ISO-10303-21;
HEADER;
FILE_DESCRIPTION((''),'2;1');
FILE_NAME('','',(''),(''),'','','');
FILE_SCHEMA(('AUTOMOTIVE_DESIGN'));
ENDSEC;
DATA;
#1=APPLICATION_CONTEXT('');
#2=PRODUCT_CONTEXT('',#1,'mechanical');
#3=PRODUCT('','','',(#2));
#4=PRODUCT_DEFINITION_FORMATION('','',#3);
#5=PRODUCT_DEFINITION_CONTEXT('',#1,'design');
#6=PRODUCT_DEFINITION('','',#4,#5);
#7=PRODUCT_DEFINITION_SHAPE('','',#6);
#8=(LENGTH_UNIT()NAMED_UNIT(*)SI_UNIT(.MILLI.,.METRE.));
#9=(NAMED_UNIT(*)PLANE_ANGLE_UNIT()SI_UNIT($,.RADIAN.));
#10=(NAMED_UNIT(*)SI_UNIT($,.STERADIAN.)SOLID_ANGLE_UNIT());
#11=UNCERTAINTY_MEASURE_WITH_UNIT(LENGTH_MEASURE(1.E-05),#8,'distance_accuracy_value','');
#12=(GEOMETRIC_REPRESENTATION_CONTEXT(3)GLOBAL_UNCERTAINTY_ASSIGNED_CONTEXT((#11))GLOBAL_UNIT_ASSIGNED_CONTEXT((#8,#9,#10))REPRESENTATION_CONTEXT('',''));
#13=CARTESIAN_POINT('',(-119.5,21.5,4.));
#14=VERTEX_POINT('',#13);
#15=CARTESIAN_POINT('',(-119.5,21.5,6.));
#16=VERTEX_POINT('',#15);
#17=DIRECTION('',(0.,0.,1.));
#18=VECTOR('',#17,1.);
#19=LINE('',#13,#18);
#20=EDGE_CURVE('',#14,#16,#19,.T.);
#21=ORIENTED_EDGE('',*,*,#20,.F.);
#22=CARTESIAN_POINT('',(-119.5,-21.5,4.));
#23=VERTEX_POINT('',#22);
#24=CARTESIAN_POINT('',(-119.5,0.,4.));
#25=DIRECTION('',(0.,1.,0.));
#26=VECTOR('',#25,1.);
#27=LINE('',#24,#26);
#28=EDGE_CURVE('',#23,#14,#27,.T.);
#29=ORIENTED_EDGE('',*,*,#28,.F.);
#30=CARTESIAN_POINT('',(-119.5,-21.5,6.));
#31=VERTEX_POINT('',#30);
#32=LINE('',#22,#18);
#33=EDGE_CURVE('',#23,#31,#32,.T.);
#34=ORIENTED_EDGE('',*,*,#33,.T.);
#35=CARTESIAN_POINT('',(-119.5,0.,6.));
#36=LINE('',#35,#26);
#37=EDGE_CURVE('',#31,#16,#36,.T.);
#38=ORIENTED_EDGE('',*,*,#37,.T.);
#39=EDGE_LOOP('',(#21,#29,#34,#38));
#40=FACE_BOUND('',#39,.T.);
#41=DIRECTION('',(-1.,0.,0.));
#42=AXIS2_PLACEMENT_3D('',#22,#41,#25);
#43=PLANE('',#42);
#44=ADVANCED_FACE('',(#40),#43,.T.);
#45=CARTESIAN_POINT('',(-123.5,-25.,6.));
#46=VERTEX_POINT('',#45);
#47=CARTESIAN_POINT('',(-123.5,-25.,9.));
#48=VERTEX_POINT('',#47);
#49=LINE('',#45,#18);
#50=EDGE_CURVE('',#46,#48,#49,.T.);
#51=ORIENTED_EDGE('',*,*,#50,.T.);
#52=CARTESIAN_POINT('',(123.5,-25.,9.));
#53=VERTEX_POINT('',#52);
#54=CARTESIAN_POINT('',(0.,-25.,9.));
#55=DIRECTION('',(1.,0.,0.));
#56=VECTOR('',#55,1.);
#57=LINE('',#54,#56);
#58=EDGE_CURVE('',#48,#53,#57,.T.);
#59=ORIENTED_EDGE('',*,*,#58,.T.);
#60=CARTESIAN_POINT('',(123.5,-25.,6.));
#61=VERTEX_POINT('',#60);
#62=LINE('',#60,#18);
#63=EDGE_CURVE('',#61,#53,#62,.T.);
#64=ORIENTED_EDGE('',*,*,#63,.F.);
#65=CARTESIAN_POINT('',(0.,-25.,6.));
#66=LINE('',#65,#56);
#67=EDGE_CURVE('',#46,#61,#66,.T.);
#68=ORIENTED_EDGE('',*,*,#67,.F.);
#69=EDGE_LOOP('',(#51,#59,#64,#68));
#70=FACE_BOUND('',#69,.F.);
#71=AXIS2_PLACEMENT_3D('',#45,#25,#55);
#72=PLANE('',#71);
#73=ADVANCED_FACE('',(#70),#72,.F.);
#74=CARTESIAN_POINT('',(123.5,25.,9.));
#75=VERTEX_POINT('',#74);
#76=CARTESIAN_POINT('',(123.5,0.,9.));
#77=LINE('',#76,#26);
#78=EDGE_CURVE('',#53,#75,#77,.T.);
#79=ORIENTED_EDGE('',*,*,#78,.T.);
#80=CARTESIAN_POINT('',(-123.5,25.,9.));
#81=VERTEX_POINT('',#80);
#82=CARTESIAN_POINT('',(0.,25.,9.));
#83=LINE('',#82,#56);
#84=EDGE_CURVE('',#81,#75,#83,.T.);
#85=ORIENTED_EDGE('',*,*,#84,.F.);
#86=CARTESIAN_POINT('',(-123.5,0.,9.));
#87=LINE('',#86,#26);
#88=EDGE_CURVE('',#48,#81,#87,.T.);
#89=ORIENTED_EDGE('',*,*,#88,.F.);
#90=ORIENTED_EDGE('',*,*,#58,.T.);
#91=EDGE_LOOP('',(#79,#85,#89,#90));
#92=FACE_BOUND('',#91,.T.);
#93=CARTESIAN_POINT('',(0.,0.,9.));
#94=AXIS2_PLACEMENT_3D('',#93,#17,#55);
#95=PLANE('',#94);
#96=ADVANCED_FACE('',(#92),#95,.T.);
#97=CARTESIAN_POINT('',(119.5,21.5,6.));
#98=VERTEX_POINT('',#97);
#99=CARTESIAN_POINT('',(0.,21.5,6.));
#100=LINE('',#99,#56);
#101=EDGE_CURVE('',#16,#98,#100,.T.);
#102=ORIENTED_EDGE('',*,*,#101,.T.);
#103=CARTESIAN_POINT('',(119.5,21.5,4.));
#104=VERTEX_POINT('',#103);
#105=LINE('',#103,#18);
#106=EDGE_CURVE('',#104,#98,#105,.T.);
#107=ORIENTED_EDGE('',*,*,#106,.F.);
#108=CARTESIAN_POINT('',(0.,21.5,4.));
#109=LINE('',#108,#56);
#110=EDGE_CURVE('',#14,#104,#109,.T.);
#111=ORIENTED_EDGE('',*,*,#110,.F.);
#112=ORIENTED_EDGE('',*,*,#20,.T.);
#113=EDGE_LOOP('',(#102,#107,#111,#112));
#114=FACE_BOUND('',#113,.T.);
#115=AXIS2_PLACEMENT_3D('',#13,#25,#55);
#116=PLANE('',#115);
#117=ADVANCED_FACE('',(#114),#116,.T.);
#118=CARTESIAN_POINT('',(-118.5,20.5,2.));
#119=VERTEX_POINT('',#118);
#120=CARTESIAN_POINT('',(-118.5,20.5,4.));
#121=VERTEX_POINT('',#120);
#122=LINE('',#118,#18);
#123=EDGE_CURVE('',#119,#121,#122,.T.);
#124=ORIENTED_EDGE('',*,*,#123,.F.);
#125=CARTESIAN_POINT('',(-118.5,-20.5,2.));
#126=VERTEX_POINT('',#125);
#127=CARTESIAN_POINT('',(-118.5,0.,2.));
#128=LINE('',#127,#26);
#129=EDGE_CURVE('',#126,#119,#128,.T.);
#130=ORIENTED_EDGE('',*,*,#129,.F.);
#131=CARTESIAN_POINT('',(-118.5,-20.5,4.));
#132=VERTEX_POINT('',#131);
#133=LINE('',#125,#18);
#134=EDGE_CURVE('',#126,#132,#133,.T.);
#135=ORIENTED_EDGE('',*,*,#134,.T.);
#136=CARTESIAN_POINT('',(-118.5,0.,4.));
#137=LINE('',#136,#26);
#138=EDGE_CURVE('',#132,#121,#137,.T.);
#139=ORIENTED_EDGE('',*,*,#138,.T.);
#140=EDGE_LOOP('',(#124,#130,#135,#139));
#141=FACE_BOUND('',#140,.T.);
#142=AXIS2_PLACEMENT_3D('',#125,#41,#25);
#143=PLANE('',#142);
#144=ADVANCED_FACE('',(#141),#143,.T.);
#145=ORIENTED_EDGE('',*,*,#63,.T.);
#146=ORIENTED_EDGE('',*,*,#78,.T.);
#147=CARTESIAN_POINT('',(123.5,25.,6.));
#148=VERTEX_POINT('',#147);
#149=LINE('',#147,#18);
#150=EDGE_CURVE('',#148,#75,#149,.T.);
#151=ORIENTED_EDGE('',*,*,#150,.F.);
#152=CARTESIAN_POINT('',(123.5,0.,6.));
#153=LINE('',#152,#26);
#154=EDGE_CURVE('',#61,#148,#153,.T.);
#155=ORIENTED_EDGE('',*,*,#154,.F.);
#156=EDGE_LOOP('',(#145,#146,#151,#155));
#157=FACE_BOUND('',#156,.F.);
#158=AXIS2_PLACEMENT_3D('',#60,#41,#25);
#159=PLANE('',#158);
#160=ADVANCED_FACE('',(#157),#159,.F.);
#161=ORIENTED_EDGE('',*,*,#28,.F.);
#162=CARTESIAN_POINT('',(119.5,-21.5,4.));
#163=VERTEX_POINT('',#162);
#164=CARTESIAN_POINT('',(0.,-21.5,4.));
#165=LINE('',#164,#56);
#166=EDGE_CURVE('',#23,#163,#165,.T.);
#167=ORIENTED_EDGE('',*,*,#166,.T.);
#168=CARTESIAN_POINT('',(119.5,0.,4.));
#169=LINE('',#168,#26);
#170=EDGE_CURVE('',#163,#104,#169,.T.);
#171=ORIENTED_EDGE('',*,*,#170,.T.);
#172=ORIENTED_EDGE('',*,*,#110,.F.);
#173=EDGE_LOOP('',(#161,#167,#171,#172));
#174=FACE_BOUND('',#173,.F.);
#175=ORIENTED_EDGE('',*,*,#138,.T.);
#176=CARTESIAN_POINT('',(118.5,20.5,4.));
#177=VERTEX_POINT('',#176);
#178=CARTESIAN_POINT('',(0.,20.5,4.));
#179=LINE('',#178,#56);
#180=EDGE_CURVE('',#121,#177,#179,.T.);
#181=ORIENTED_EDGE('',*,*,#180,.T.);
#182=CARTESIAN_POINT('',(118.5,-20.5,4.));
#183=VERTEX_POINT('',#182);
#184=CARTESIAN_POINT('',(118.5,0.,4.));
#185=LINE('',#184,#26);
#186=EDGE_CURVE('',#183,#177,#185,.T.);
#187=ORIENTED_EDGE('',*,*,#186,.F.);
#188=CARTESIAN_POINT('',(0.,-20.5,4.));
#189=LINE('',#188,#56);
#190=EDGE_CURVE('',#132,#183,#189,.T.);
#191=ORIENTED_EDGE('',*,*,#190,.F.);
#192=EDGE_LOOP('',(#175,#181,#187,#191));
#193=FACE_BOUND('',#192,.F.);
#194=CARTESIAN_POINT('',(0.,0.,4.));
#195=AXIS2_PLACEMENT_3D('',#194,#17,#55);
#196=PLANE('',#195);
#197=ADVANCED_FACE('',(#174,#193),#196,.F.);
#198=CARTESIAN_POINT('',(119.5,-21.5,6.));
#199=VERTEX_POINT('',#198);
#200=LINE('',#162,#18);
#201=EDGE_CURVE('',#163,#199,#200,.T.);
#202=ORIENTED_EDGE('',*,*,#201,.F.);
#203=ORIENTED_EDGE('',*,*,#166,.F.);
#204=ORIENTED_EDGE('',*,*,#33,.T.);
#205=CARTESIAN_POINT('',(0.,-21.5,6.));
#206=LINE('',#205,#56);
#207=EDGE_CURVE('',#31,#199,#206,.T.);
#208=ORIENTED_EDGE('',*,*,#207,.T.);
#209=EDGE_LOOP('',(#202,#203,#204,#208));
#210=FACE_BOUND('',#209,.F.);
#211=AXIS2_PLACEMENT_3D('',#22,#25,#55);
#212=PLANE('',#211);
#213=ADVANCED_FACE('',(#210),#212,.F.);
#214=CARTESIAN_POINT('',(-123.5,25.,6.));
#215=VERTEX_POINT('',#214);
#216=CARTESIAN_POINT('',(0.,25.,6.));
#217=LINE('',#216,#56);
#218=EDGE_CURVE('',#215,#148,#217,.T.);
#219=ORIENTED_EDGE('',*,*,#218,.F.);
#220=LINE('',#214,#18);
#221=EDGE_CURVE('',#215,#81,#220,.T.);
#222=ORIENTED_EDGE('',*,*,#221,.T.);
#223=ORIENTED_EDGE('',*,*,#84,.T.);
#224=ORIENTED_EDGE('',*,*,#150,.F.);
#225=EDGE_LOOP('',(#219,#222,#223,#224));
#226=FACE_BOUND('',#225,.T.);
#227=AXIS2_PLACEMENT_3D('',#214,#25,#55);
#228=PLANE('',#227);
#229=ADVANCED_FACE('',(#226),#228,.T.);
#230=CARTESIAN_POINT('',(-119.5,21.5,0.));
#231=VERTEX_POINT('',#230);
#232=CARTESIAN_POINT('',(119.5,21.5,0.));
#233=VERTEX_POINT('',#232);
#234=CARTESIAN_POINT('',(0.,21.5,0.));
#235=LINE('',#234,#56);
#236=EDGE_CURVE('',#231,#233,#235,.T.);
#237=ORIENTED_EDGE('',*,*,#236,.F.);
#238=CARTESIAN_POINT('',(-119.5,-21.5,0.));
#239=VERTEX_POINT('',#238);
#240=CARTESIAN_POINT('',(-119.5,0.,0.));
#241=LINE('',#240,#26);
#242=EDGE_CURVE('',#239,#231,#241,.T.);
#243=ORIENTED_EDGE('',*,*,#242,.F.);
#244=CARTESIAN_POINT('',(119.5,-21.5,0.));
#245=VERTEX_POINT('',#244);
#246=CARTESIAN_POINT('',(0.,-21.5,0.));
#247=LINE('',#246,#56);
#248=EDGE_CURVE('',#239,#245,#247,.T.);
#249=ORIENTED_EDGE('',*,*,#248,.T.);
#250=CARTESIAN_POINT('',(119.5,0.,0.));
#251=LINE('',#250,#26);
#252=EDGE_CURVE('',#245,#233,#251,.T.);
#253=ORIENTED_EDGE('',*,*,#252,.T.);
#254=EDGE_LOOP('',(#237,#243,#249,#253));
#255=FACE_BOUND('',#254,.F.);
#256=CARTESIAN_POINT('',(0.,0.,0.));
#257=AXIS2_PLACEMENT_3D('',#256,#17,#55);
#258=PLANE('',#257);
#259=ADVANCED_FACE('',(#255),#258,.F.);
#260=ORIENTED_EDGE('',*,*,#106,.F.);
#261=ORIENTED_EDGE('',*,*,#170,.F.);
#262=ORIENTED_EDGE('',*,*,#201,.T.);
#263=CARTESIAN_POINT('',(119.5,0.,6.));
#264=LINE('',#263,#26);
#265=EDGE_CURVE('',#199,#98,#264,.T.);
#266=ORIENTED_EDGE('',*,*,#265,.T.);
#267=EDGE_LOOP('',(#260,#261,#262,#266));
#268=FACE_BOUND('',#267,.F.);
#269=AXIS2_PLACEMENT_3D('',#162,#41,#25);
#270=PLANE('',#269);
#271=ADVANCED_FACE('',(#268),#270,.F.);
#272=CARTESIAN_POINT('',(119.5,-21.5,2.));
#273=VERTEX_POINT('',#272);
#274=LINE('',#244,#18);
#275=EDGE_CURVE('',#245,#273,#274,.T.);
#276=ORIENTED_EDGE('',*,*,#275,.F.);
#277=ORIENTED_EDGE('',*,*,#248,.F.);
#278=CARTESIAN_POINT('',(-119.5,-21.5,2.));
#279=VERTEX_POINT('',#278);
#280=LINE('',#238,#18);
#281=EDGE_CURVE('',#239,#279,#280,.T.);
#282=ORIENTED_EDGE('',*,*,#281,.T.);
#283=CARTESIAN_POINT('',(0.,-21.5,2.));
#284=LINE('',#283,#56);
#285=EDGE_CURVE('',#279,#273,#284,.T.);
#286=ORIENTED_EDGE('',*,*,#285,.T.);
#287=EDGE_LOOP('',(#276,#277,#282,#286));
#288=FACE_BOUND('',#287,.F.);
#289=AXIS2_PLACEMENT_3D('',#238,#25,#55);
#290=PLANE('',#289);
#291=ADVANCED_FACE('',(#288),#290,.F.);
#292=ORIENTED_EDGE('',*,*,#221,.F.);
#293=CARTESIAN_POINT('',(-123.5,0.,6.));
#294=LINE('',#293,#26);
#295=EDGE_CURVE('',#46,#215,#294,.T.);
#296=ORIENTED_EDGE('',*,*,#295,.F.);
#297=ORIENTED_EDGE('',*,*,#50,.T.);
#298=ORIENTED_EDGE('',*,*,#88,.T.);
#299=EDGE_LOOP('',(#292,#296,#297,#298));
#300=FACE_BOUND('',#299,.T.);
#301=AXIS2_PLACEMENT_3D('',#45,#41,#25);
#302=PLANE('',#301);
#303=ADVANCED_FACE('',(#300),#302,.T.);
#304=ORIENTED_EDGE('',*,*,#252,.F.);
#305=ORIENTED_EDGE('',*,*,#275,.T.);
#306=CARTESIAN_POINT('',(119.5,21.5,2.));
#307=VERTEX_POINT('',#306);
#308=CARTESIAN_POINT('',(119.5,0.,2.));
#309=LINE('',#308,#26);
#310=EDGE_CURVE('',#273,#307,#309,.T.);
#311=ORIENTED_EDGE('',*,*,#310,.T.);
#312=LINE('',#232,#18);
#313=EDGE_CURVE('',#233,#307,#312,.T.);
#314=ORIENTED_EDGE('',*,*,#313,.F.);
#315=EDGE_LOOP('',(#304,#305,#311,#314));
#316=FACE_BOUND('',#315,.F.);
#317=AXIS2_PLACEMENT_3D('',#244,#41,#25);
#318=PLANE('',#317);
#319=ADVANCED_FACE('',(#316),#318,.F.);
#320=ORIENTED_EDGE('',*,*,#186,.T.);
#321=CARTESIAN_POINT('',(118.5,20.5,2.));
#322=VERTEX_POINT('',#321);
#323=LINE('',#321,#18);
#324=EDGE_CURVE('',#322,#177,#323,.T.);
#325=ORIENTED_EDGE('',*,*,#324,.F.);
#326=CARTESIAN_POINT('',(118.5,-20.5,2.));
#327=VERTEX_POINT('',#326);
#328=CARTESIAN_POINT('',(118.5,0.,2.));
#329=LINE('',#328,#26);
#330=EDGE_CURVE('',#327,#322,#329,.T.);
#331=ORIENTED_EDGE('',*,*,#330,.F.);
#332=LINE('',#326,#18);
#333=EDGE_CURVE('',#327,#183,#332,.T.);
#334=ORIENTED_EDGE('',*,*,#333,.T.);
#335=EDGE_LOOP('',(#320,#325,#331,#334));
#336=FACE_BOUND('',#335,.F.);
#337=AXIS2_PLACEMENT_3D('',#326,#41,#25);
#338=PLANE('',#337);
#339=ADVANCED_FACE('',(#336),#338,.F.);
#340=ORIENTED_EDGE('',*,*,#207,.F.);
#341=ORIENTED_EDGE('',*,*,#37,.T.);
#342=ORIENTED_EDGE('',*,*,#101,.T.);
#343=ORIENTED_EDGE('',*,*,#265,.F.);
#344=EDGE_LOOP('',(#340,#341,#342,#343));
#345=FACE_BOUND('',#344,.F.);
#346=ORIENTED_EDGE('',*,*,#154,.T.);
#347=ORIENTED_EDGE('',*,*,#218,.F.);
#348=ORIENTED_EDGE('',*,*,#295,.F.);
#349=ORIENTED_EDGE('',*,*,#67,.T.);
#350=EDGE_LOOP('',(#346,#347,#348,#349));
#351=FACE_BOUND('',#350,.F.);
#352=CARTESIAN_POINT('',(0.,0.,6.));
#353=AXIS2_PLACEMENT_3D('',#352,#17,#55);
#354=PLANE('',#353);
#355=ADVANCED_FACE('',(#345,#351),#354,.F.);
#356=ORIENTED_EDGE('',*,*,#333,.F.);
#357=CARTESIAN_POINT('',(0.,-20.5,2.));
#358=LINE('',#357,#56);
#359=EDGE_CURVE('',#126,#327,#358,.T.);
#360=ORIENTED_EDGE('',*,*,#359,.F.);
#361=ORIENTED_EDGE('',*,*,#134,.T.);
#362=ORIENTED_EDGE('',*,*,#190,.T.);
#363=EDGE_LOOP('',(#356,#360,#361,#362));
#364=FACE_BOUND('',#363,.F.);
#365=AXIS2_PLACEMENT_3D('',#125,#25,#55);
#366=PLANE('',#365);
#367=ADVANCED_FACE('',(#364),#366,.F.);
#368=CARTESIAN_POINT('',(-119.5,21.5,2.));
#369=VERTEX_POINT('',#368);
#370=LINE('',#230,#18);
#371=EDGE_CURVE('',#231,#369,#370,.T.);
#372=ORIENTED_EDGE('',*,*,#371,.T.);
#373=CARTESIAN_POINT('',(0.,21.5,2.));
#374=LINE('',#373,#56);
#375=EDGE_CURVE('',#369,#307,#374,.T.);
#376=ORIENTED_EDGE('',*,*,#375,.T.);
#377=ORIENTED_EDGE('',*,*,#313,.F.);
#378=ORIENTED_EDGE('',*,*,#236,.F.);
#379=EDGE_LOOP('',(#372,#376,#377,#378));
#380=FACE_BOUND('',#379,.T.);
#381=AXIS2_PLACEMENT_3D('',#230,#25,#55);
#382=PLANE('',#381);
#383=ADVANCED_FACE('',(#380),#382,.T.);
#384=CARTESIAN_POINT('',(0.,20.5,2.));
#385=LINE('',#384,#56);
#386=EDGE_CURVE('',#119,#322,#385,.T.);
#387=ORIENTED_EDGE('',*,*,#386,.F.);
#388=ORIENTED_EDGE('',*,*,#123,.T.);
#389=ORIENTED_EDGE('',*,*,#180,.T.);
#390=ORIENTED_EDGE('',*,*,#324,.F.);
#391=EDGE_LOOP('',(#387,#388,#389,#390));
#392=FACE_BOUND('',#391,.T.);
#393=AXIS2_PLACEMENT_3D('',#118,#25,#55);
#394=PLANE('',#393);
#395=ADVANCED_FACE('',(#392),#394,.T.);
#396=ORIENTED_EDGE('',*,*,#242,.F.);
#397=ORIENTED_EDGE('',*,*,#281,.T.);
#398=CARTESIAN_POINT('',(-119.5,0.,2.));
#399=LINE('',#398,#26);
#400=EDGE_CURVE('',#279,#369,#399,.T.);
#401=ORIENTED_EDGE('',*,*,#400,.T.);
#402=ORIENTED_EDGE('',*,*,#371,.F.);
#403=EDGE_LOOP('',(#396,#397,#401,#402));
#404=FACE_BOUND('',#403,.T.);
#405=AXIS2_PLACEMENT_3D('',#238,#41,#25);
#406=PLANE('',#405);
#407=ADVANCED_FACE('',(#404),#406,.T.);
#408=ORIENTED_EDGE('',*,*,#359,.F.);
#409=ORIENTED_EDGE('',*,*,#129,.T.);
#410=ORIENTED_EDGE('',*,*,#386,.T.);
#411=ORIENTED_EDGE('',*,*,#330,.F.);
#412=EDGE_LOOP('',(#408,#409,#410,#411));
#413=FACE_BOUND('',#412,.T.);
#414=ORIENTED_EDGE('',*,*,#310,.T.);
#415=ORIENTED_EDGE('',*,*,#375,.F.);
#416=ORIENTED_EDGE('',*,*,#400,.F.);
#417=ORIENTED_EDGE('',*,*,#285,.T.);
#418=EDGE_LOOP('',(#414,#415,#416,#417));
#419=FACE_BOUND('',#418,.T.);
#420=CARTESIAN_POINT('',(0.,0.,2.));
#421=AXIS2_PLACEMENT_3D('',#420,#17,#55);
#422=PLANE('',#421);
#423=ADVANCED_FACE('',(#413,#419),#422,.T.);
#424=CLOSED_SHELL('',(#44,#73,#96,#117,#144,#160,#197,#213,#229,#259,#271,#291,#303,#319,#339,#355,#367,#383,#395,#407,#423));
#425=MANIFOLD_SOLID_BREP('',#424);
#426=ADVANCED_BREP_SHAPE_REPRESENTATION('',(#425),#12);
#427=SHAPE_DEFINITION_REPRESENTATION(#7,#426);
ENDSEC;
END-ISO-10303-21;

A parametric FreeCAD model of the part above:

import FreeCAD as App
import Part
import Sketcher

V = App.Vector
Q = App.Units.Quantity

doc = App.newDocument("Part")
body = doc.addObject("PartDesign::Body", "Body")

sketch1 = body.newObject("Sketcher::SketchObject", "Sketch")
sketch1.AttachmentSupport = (doc.getObject("XY_Plane"), [""])
sketch1.MapMode = "FlatFace"
sketch1.addGeometry([
    Part.LineSegment(V(-119.5, 21.5, 0), V(-119.5, -21.5, 0)),
    Part.LineSegment(V(-119.5, -21.5, 0), V(119.5, -21.5, 0)),
    Part.LineSegment(V(119.5, -21.5, 0), V(119.5, 21.5, 0)),
    Part.LineSegment(V(119.5, 21.5, 0), V(-119.5, 21.5, 0)),
], False)
sketch1.addConstraint([
    Sketcher.Constraint("Coincident", 0, 2, 1, 1),
    Sketcher.Constraint("Coincident", 1, 2, 2, 1),
    Sketcher.Constraint("Coincident", 2, 2, 3, 1),
    Sketcher.Constraint("Coincident", 3, 2, 0, 1),
    Sketcher.Constraint("Vertical", 0),
    Sketcher.Constraint("Horizontal", 1),
    Sketcher.Constraint("Vertical", 2),
    Sketcher.Constraint("Horizontal", 3),
    Sketcher.Constraint("Symmetric", 0, 2, 2, 2, -1, 1),
    Sketcher.Constraint("DistanceX", 1, 1, 1, 2, Q("239 mm")),
    Sketcher.Constraint("DistanceY", 0, 2, 0, 1, Q("43 mm")),
])
pad1 = body.newObject("PartDesign::Pad", "Pad")
pad1.Profile = sketch1
pad1.Length = 2

sketch2 = body.newObject("Sketcher::SketchObject", "Sketch001")
sketch2.AttachmentSupport = (doc.getObject("XY_Plane"), [""])
sketch2.MapMode = "FlatFace"
sketch2.AttachmentOffset = App.Placement(V(0, 0, 2), App.Rotation())
sketch2.addGeometry([
    Part.LineSegment(V(-118.5, 20.5, 0), V(-118.5, -20.5, 0)),
    Part.LineSegment(V(-118.5, -20.5, 0), V(118.5, -20.5, 0)),
    Part.LineSegment(V(118.5, -20.5, 0), V(118.5, 20.5, 0)),
    Part.LineSegment(V(118.5, 20.5, 0), V(-118.5, 20.5, 0)),
], False)
sketch2.addConstraint([
    Sketcher.Constraint("Coincident", 0, 2, 1, 1),
    Sketcher.Constraint("Coincident", 1, 2, 2, 1),
    Sketcher.Constraint("Coincident", 2, 2, 3, 1),
    Sketcher.Constraint("Coincident", 3, 2, 0, 1),
    Sketcher.Constraint("Vertical", 0),
    Sketcher.Constraint("Horizontal", 1),
    Sketcher.Constraint("Vertical", 2),
    Sketcher.Constraint("Horizontal", 3),
    Sketcher.Constraint("Symmetric", 0, 2, 2, 2, -1, 1),
    Sketcher.Constraint("DistanceX", 1, 1, 1, 2, Q("237 mm")),
    Sketcher.Constraint("DistanceY", 0, 2, 0, 1, Q("41 mm")),
])
pad2 = body.newObject("PartDesign::Pad", "Pad001")
pad2.Profile = sketch2
pad2.Length = 2

sketch3 = body.newObject("Sketcher::SketchObject", "Sketch002")
sketch3.AttachmentSupport = (doc.getObject("XY_Plane"), [""])
sketch3.MapMode = "FlatFace"
sketch3.AttachmentOffset = App.Placement(V(0, 0, 4), App.Rotation())
sketch3.addGeometry([
    Part.LineSegment(V(-119.5, 21.5, 0), V(-119.5, -21.5, 0)),
    Part.LineSegment(V(-119.5, -21.5, 0), V(119.5, -21.5, 0)),
    Part.LineSegment(V(119.5, -21.5, 0), V(119.5, 21.5, 0)),
    Part.LineSegment(V(119.5, 21.5, 0), V(-119.5, 21.5, 0)),
], False)
sketch3.addConstraint([
    Sketcher.Constraint("Coincident", 0, 2, 1, 1),
    Sketcher.Constraint("Coincident", 1, 2, 2, 1),
    Sketcher.Constraint("Coincident", 2, 2, 3, 1),
    Sketcher.Constraint("Coincident", 3, 2, 0, 1),
    Sketcher.Constraint("Vertical", 0),
    Sketcher.Constraint("Horizontal", 1),
    Sketcher.Constraint("Vertical", 2),
    Sketcher.Constraint("Horizontal", 3),
    Sketcher.Constraint("Symmetric", 0, 2, 2, 2, -1, 1),
    Sketcher.Constraint("DistanceX", 1, 1, 1, 2, Q("239 mm")),
    Sketcher.Constraint("DistanceY", 0, 2, 0, 1, Q("43 mm")),
])
pad3 = body.newObject("PartDesign::Pad", "Pad002")
pad3.Profile = sketch3
pad3.Length = 2

sketch4 = body.newObject("Sketcher::SketchObject", "Sketch003")
sketch4.AttachmentSupport = (doc.getObject("XY_Plane"), [""])
sketch4.MapMode = "FlatFace"
sketch4.AttachmentOffset = App.Placement(V(0, 0, 6), App.Rotation())
sketch4.addGeometry([
    Part.LineSegment(V(-123.5, 25, 0), V(-123.5, -25, 0)),
    Part.LineSegment(V(-123.5, -25, 0), V(123.5, -25, 0)),
    Part.LineSegment(V(123.5, -25, 0), V(123.5, 25, 0)),
    Part.LineSegment(V(123.5, 25, 0), V(-123.5, 25, 0)),
], False)
sketch4.addConstraint([
    Sketcher.Constraint("Coincident", 0, 2, 1, 1),
    Sketcher.Constraint("Coincident", 1, 2, 2, 1),
    Sketcher.Constraint("Coincident", 2, 2, 3, 1),
    Sketcher.Constraint("Coincident", 3, 2, 0, 1),
    Sketcher.Constraint("Vertical", 0),
    Sketcher.Constraint("Horizontal", 1),
    Sketcher.Constraint("Vertical", 2),
    Sketcher.Constraint("Horizontal", 3),
    Sketcher.Constraint("Symmetric", 0, 2, 2, 2, -1, 1),
    Sketcher.Constraint("DistanceX", 1, 1, 1, 2, Q("247 mm")),
    Sketcher.Constraint("DistanceY", 0, 2, 0, 1, Q("50 mm")),
])
pad4 = body.newObject("PartDesign::Pad", "Pad003")
pad4.Profile = sketch4
pad4.Length = 3

doc.recompute()
